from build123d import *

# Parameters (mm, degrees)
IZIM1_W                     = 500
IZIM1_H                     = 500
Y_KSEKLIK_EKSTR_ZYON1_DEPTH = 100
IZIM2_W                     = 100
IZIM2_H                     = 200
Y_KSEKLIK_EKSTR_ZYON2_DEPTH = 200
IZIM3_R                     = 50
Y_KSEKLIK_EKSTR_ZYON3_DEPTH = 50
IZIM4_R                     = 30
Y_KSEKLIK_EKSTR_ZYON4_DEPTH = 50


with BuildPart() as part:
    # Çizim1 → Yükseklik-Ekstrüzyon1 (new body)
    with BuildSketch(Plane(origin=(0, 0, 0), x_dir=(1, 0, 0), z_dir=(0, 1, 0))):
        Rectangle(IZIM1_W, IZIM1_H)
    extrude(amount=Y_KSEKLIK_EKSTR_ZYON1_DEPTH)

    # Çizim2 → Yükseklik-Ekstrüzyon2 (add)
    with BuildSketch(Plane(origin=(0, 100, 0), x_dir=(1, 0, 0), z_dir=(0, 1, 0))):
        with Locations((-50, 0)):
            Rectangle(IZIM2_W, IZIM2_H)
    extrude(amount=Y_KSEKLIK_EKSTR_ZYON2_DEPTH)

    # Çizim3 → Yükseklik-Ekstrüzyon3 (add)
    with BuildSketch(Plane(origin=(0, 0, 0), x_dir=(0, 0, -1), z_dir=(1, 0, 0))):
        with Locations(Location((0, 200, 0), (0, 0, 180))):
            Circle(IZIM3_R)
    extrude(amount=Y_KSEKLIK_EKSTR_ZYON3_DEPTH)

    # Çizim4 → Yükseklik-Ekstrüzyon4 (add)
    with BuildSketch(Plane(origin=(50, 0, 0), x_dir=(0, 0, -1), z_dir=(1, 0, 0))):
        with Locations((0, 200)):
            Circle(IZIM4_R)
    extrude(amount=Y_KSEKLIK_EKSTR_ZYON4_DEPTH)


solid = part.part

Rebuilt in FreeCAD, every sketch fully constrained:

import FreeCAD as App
import Part
import Sketcher
from FreeCAD import Vector
Q = App.Units.Quantity

doc = App.newDocument("Part")
params = doc.addObject("Spreadsheet::Sheet", "Params")
for row, (alias, value) in enumerate([
    ("sketch1_width", "500 mm"),
    ("pad1_length", "100 mm"),
    ("sketch2_width", "100 mm"),
    ("sketch2_height", "200 mm"),
    ("pad2_length", "200 mm"),
    ("sketch3_diameter", "100 mm"),
    ("pad3_length", "50 mm"),
    ("sketch4_diameter", "60 mm"),
    ("pad4_length", "50 mm"),
], start=1):
    params.set(f"A{row}", alias)
    params.set(f"B{row}", "=" + value)
    params.setAlias(f"B{row}", alias)

body = doc.addObject("PartDesign::Body", "Body")

# Sketch on XZ plane
sketch1 = body.newObject("Sketcher::SketchObject", "Sketch")
sketch1.AttachmentSupport = (doc.getObject("XZ_Plane"), [""])
sketch1.MapMode = "FlatFace"
sketch1.addGeometry([
    Part.LineSegment(Vector(-250, -250, 0), Vector(-250, 250, 0)),
    Part.LineSegment(Vector(-250, 250, 0), Vector(250, 250, 0)),
    Part.LineSegment(Vector(250, 250, 0), Vector(250, -250, 0)),
    Part.LineSegment(Vector(250, -250, 0), Vector(-250, -250, 0)),
], False)
sketch1.addConstraint([
    Sketcher.Constraint("Coincident", 0, 2, 1, 1),
    Sketcher.Constraint("Coincident", 1, 2, 2, 1),
    Sketcher.Constraint("Coincident", 2, 2, 3, 1),
    Sketcher.Constraint("Coincident", 3, 2, 0, 1),
    Sketcher.Constraint("Vertical", 0),
    Sketcher.Constraint("Horizontal", 1),
    Sketcher.Constraint("Vertical", 2),
    Sketcher.Constraint("Horizontal", 3),
    Sketcher.Constraint("Symmetric", 0, 2, 2, 2, -1, 1),
    Sketcher.Constraint("Equal", 3, 0),
    Sketcher.Constraint("DistanceX", 1, 1, 1, 2, Q("500 mm")),
])
sketch1.setExpression("Constraints[10]", "Params.sketch1_width")
pad1 = body.newObject("PartDesign::Pad", "Pad")
pad1.Profile = sketch1
pad1.setExpression("Length", "Params.pad1_length")
pad1.Reversed = True

# Sketch on XZ plane
sketch2 = body.newObject("Sketcher::SketchObject", "Sketch001")
sketch2.AttachmentSupport = (doc.getObject("XZ_Plane"), [""])
sketch2.MapMode = "FlatFace"
sketch2.AttachmentOffset = App.Placement(Vector(0, 0, -100), App.Rotation())
sketch2.addGeometry([
    Part.LineSegment(Vector(-100, -100, 0), Vector(-100, 100, 0)),
    Part.LineSegment(Vector(-100, 100, 0), Vector(0, 100, 0)),
    Part.LineSegment(Vector(0, 100, 0), Vector(0, -100, 0)),
    Part.LineSegment(Vector(0, -100, 0), Vector(-100, -100, 0)),
], False)
sketch2.addConstraint([
    Sketcher.Constraint("Coincident", 0, 2, 1, 1),
    Sketcher.Constraint("Coincident", 1, 2, 2, 1),
    Sketcher.Constraint("Coincident", 2, 2, 3, 1),
    Sketcher.Constraint("Coincident", 3, 2, 0, 1),
    Sketcher.Constraint("Vertical", 0),
    Sketcher.Constraint("Horizontal", 1),
    Sketcher.Constraint("Vertical", 2),
    Sketcher.Constraint("Horizontal", 3),
    Sketcher.Constraint("Symmetric", 1, 2, 2, 2, -1, 1),
    Sketcher.Constraint("DistanceX", 1, 1, 1, 2, Q("100 mm")),
    Sketcher.Constraint("DistanceY", 0, 1, 0, 2, Q("200 mm")),
])
sketch2.setExpression("Constraints[9]", "Params.sketch2_width")
sketch2.setExpression("Constraints[10]", "Params.sketch2_height")
pad2 = body.newObject("PartDesign::Pad", "Pad001")
pad2.Profile = sketch2
pad2.setExpression("Length", "Params.pad2_length")
pad2.Reversed = True

# Sketch on YZ plane
sketch3 = body.newObject("Sketcher::SketchObject", "Sketch002")
sketch3.AttachmentSupport = (doc.getObject("YZ_Plane"), [""])
sketch3.MapMode = "FlatFace"
sketch3.addGeometry(Part.Circle(Vector(200, 0, 0), Vector(0, 0, 1), 50), False)
sketch3.addConstraint([
    Sketcher.Constraint("PointOnObject", 0, 3, -1),
    Sketcher.Constraint("Diameter", 0, Q("100 mm")),
    Sketcher.Constraint("DistanceX", -1, 1, 0, 3, Q("200 mm")),
])
sketch3.setExpression("Constraints[1]", "Params.sketch3_diameter")
pad3 = body.newObject("PartDesign::Pad", "Pad002")
pad3.Profile = sketch3
pad3.setExpression("Length", "Params.pad3_length")

# Sketch on YZ plane
sketch4 = body.newObject("Sketcher::SketchObject", "Sketch003")
sketch4.AttachmentSupport = (doc.getObject("YZ_Plane"), [""])
sketch4.MapMode = "FlatFace"
sketch4.AttachmentOffset = App.Placement(Vector(0, 0, 50), App.Rotation())
sketch4.addGeometry(Part.Circle(Vector(200, 0, 0), Vector(0, 0, 1), 30), False)
sketch4.addConstraint([
    Sketcher.Constraint("PointOnObject", 0, 3, -1),
    Sketcher.Constraint("Diameter", 0, Q("60 mm")),
    Sketcher.Constraint("DistanceX", -1, 1, 0, 3, Q("200 mm")),
])
sketch4.setExpression("Constraints[1]", "Params.sketch4_diameter")
pad4 = body.newObject("PartDesign::Pad", "Pad003")
pad4.Profile = sketch4
pad4.setExpression("Length", "Params.pad4_length")

doc.recompute()
